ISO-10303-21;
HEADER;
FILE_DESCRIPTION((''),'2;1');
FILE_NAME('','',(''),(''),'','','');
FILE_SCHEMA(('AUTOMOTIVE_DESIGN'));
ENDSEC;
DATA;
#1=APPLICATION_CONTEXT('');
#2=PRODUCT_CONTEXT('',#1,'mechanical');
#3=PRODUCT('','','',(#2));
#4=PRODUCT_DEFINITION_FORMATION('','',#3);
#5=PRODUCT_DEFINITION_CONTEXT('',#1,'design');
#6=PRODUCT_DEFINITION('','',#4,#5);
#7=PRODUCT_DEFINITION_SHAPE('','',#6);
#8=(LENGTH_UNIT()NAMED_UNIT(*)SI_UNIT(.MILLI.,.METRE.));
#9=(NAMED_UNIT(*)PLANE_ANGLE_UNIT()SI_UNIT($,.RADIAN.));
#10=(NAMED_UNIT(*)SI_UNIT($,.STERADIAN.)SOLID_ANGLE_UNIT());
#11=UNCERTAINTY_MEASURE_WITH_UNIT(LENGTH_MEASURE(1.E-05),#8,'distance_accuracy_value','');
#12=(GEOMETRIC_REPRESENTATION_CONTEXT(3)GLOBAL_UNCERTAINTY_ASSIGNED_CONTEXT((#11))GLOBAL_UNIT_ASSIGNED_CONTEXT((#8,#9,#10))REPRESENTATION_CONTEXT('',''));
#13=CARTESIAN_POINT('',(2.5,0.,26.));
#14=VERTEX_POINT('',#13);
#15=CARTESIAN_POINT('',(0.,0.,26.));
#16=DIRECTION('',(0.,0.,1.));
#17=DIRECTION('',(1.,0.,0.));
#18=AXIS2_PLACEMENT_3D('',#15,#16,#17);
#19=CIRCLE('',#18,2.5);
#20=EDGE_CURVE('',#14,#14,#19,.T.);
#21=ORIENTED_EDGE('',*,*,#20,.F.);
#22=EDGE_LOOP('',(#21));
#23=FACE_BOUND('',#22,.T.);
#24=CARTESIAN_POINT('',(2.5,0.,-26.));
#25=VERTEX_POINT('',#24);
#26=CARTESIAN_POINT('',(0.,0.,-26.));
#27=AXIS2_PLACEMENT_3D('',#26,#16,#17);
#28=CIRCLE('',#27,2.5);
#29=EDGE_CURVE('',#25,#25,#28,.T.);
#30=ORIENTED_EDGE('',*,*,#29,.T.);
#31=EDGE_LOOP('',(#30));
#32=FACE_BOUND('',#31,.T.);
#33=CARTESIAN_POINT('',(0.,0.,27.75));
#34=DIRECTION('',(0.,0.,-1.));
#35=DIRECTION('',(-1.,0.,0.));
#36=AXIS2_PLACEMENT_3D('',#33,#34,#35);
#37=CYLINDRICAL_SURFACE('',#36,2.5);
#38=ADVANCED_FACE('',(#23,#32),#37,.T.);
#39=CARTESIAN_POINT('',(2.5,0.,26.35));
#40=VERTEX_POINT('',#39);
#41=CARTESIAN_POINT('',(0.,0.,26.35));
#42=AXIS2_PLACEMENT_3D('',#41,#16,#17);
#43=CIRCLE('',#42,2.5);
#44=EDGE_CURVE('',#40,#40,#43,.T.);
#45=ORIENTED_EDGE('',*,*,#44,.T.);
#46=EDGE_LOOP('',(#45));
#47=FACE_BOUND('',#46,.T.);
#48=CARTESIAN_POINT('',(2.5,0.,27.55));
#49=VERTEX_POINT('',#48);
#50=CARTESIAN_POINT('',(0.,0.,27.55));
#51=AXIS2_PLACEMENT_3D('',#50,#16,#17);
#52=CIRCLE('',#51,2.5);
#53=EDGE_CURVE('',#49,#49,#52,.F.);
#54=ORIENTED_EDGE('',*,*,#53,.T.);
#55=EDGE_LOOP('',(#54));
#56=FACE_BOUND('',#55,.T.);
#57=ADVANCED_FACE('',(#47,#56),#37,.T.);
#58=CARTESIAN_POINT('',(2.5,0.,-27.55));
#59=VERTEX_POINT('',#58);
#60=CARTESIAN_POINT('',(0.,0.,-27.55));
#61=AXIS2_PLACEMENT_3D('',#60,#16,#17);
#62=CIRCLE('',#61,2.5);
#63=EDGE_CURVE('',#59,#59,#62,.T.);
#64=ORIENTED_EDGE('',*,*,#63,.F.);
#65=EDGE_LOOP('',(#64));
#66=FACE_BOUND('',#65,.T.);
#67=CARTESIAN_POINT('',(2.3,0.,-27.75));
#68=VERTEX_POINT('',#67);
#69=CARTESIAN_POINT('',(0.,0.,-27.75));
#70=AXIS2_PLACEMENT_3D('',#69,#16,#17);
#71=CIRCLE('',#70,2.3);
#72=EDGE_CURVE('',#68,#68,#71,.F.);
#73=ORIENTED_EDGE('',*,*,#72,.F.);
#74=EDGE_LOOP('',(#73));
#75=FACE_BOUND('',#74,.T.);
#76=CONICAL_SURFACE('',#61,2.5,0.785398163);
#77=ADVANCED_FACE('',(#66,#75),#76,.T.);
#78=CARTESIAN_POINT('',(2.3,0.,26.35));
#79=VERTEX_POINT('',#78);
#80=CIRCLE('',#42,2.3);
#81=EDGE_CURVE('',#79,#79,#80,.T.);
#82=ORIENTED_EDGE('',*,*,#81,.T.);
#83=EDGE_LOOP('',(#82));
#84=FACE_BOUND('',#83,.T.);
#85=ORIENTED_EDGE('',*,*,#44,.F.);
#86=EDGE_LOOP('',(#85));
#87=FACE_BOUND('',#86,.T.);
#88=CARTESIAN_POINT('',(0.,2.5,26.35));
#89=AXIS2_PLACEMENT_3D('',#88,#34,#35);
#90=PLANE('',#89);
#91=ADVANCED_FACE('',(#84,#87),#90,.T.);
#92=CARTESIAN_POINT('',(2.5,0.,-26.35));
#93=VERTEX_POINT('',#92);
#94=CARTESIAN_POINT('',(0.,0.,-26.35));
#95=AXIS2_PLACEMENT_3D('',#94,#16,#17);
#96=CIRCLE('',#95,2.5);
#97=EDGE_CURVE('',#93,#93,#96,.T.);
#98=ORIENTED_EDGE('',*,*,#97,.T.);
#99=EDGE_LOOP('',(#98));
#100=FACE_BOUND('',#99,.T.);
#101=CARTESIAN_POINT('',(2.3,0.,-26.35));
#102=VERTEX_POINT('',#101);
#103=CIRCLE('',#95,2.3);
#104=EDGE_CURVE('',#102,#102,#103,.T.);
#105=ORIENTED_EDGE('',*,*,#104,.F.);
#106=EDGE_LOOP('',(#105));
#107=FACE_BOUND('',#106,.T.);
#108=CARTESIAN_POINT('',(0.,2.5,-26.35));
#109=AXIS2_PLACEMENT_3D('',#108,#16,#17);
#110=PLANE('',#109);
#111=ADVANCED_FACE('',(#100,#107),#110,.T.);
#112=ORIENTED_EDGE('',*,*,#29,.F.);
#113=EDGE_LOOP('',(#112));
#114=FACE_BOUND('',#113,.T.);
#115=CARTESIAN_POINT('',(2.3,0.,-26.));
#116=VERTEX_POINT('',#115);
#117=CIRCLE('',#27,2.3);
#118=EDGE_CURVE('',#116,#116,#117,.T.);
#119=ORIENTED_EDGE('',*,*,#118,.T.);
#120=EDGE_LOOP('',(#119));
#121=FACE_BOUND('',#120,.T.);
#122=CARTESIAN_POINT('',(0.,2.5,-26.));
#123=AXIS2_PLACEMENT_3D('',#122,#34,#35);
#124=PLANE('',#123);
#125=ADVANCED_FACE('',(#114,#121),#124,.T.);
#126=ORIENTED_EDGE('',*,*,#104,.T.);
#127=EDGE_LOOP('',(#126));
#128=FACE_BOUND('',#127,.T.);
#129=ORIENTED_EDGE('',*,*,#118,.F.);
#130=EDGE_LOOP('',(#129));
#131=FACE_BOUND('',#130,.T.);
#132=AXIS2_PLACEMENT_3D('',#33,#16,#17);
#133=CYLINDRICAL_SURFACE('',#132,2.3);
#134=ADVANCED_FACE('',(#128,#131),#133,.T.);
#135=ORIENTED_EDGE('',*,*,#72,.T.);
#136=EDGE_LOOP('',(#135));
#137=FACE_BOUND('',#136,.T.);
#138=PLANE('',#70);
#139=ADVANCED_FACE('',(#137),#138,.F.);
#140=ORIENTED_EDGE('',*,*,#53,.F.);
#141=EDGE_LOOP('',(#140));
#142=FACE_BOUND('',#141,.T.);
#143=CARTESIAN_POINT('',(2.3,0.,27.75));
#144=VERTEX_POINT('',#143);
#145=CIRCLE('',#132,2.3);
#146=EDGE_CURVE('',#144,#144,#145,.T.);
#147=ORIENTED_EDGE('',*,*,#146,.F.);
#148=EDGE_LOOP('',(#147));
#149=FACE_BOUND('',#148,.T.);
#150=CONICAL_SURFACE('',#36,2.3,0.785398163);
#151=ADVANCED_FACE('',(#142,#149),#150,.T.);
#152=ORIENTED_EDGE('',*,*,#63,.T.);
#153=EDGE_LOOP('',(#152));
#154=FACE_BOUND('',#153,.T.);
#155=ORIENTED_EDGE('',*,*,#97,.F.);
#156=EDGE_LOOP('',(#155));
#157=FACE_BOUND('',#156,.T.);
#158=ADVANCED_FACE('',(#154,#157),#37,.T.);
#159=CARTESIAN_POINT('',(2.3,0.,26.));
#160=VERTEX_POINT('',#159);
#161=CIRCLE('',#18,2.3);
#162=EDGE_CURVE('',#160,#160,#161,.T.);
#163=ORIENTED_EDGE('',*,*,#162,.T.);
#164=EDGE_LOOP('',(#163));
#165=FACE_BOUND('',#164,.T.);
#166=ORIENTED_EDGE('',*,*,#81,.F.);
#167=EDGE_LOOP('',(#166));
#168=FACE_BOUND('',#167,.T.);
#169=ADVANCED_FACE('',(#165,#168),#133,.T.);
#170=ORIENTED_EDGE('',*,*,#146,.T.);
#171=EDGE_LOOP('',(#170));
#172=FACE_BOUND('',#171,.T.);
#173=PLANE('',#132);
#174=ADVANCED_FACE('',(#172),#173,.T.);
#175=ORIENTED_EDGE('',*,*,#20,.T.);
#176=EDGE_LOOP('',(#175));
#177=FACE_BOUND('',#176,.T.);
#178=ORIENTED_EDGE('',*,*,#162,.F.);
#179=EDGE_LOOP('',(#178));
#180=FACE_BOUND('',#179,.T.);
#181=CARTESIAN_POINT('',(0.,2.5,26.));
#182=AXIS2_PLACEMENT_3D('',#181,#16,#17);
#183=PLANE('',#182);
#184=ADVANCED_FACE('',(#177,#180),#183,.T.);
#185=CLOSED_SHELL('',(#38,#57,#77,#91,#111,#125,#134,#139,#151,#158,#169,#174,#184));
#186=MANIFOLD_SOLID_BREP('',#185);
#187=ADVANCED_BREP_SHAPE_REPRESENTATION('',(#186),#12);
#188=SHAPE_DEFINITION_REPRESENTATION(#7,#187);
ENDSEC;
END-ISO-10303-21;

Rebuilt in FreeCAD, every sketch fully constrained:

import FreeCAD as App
import Part
import Sketcher


def edges_at(feature, points):
    """Names of the edges that pass closest to the given points."""
    edges = feature.Shape.Edges
    near = lambda p: min(range(len(edges)), key=lambda i: edges[i].distToShape(Part.Vertex(*p))[0])
    return sorted({f"Edge{near(p) + 1}" for p in points})

doc = App.newDocument("Part")
body = doc.addObject("PartDesign::Body", "Body")

sketch1 = doc.addObject("Sketcher::SketchObject", "Sketch")
body.addObject(sketch1)
sketch1.AttachmentSupport = (doc.XY_Plane, [""])
sketch1.MapMode = "FlatFace"
sketch1.addGeometry(Part.Circle(App.Vector(0, 0, 0), App.Vector(0, 0, 1), 2.5), False)
sketch1.addConstraint([
    Sketcher.Constraint("Coincident", 0, 3, -1, 1),
    Sketcher.Constraint("Diameter", 0, 5.0),
])
pad1 = doc.addObject("PartDesign::Pad", "Pad")
body.addObject(pad1)
pad1.Profile = sketch1
pad1.Length = 55.5
pad1.Midplane = True

sketch2 = doc.addObject("Sketcher::SketchObject", "Sketch001")
body.addObject(sketch2)
sketch2.AttachmentSupport = (doc.YZ_Plane, [""])
sketch2.MapMode = "FlatFace"
sketch2.addGeometry([
    Part.LineSegment(App.Vector(2.5, 26.35, 0), App.Vector(2.3, 26.35, 0)),
    Part.LineSegment(App.Vector(2.3, 26.35, 0), App.Vector(2.3, 26, 0)),
    Part.LineSegment(App.Vector(2.3, 26, 0), App.Vector(2.5, 26, 0)),
    Part.LineSegment(App.Vector(2.5, 26, 0), App.Vector(2.5, 26.35, 0)),
    Part.LineSegment(App.Vector(2.5, -26, 0), App.Vector(2.3, -26, 0)),
    Part.LineSegment(App.Vector(2.3, -26, 0), App.Vector(2.3, -26.35, 0)),
    Part.LineSegment(App.Vector(2.3, -26.35, 0), App.Vector(2.5, -26.35, 0)),
    Part.LineSegment(App.Vector(2.5, -26.35, 0), App.Vector(2.5, -26, 0)),
], False)
sketch2.addConstraint([
    Sketcher.Constraint("Coincident", 0, 2, 1, 1),
    Sketcher.Constraint("Coincident", 1, 2, 2, 1),
    Sketcher.Constraint("Coincident", 2, 2, 3, 1),
    Sketcher.Constraint("Coincident", 3, 2, 0, 1),
    Sketcher.Constraint("Coincident", 4, 2, 5, 1),
    Sketcher.Constraint("Coincident", 5, 2, 6, 1),
    Sketcher.Constraint("Coincident", 6, 2, 7, 1),
    Sketcher.Constraint("Coincident", 7, 2, 4, 1),
    Sketcher.Constraint("Horizontal", 0),
    Sketcher.Constraint("Vertical", 1),
    Sketcher.Constraint("Horizontal", 2),
    Sketcher.Constraint("Vertical", 3),
    Sketcher.Constraint("Horizontal", 4),
    Sketcher.Constraint("Vertical", 5),
    Sketcher.Constraint("Horizontal", 6),
    Sketcher.Constraint("Vertical", 7),
    Sketcher.Constraint("Symmetric", 1, 2, 4, 2, -1),
    Sketcher.Constraint("Symmetric", 3, 2, 6, 2, -1),
    Sketcher.Constraint("DistanceX", 0, 2, 0, 1, 0.2),
    Sketcher.Constraint("DistanceY", -1, 1, 1, 2, 26.0),
    Sketcher.Constraint("DistanceY", 1, 2, 1, 1, 0.35),
    Sketcher.Constraint("DistanceX", -1, 1, 0, 2, 2.3),
])
groove = doc.addObject("PartDesign::Groove", "Groove")
body.addObject(groove)
groove.Profile = sketch2
groove.ReferenceAxis = (sketch2, ["V_Axis"])
groove.Angle = 360
doc.recompute()

chamfer = doc.addObject("PartDesign::Chamfer", "Chamfer")
body.addObject(chamfer)
chamfer.Base = (groove, edges_at(groove, [(-2.5, 0, -27.75), (-2.5, 0, 27.75)]))
chamfer.Size = 0.2

doc.recompute()
